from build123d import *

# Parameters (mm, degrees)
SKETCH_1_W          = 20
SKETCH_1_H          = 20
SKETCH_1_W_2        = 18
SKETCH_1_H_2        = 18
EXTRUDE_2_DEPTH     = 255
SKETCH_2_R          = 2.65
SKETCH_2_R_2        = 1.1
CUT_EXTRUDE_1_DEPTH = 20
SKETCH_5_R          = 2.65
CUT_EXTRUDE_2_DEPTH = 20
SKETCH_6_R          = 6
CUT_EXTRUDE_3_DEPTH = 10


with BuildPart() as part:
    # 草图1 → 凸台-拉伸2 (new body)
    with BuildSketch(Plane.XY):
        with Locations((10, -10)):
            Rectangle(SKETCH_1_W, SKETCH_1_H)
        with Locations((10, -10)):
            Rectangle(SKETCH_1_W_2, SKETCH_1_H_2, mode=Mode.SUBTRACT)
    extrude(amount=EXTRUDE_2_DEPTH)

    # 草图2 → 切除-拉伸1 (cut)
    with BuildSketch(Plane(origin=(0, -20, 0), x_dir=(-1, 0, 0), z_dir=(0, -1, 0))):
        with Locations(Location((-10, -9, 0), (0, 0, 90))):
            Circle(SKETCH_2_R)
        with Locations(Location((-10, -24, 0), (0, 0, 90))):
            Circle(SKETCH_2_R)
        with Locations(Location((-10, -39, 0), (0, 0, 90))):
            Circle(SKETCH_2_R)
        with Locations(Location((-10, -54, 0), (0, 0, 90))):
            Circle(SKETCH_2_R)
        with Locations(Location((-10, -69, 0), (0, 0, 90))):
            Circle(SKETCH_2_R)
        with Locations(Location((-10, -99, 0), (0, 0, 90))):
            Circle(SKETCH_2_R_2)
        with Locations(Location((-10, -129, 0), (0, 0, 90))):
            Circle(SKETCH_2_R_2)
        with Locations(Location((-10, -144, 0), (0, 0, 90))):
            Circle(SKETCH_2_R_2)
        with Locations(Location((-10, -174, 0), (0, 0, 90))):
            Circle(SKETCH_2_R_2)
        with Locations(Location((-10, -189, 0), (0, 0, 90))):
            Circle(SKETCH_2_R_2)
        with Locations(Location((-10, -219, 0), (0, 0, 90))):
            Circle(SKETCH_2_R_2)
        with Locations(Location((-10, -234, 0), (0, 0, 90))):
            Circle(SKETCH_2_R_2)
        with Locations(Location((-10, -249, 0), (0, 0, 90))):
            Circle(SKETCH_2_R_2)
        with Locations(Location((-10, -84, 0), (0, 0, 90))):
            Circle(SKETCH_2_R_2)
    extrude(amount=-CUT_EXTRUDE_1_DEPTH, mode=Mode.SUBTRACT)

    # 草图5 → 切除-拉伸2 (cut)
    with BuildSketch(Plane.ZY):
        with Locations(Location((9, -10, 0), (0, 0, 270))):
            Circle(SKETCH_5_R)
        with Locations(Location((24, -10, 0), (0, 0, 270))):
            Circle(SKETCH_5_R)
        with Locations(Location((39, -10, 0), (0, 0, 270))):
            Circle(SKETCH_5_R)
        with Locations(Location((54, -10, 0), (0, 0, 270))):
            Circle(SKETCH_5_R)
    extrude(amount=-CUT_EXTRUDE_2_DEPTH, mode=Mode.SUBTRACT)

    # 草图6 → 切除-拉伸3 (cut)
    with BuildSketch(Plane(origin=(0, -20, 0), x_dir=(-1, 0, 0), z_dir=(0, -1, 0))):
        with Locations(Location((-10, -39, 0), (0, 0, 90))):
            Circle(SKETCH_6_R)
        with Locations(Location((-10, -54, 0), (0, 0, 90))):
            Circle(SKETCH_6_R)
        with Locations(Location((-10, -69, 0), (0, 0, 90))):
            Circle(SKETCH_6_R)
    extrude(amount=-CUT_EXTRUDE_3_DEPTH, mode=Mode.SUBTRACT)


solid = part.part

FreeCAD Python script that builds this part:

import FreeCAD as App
import Part
import Sketcher
from FreeCAD import Vector


def add_polygon(sketch, points):
    """Adds a closed chain of lines whose ends are joined by coincident constraints."""
    first, n = sketch.GeometryCount, len(points)
    for a, b in zip(points, points[1:] + points[:1]):
        sketch.addGeometry(Part.LineSegment(App.Vector(*a, 0), App.Vector(*b, 0)), False)
    for i in range(n):
        sketch.addConstraint(Sketcher.Constraint("Coincident", first + i, 2, first + (i + 1) % n, 1))

doc = App.newDocument("Part")
body = doc.addObject("PartDesign::Body", "Body")

# Sketch on XY plane
sketch1 = body.newObject("Sketcher::SketchObject", "Sketch")
sketch1.AttachmentSupport = (doc.getObject("XY_Plane"), [""])
sketch1.MapMode = "FlatFace"
add_polygon(sketch1, [(0, 0), (0, -20), (20, -20), (20, 0)])  # lines 0-3
add_polygon(sketch1, [(19, -19), (1, -19), (1, -1), (19, -1)])  # lines 4-7
sketch1.addConstraint(Sketcher.Constraint("Vertical", 0))
sketch1.addConstraint(Sketcher.Constraint("Horizontal", 1))
sketch1.addConstraint(Sketcher.Constraint("Vertical", 2))
sketch1.addConstraint(Sketcher.Constraint("Horizontal", 3))
sketch1.addConstraint(Sketcher.Constraint("Horizontal", 4))
sketch1.addConstraint(Sketcher.Constraint("Vertical", 5))
sketch1.addConstraint(Sketcher.Constraint("Horizontal", 6))
sketch1.addConstraint(Sketcher.Constraint("Vertical", 7))
sketch1.addConstraint(Sketcher.Constraint("Coincident", 3, 2, -1, 1))
sketch1.addConstraint(Sketcher.Constraint("Equal", 3, 0))
sketch1.addConstraint(Sketcher.Constraint("Equal", 6, 5))
sketch1.addConstraint(Sketcher.Constraint("DistanceX", 1, 1, 1, 2, 20.0))
sketch1.addConstraint(Sketcher.Constraint("DistanceX", 4, 2, 4, 1, 18.0))
sketch1.addConstraint(Sketcher.Constraint("DistanceX", -1, 1, 4, 2, 1.0))
sketch1.addConstraint(Sketcher.Constraint("DistanceY", 4, 2, -1, 1, 19.0))
pad1 = body.newObject("PartDesign::Pad", "Pad")
pad1.Profile = sketch1
pad1.Length = 255

# Sketch on XZ plane
sketch2 = body.newObject("Sketcher::SketchObject", "Sketch001")
sketch2.AttachmentSupport = (doc.getObject("XZ_Plane"), [""])
sketch2.MapMode = "FlatFace"
sketch2.AttachmentOffset = App.Placement(Vector(0, 0, 20), App.Rotation())
sketch2.addGeometry(Part.Circle(Vector(10, 9, 0), Vector(0, 0, 1), 2.65), False)
sketch2.addGeometry(Part.Circle(Vector(10, 24, 0), Vector(0, 0, 1), 2.65), False)
sketch2.addGeometry(Part.Circle(Vector(10, 39, 0), Vector(0, 0, 1), 2.65), False)
sketch2.addGeometry(Part.Circle(Vector(10, 54, 0), Vector(0, 0, 1), 2.65), False)
sketch2.addGeometry(Part.Circle(Vector(10, 69, 0), Vector(0, 0, 1), 2.65), False)
sketch2.addGeometry(Part.Circle(Vector(10, 99, 0), Vector(0, 0, 1), 1.1), False)
sketch2.addGeometry(Part.Circle(Vector(10, 129, 0), Vector(0, 0, 1), 1.1), False)
sketch2.addGeometry(Part.Circle(Vector(10, 144, 0), Vector(0, 0, 1), 1.1), False)
sketch2.addGeometry(Part.Circle(Vector(10, 174, 0), Vector(0, 0, 1), 1.1), False)
sketch2.addGeometry(Part.Circle(Vector(10, 189, 0), Vector(0, 0, 1), 1.1), False)
sketch2.addGeometry(Part.Circle(Vector(10, 219, 0), Vector(0, 0, 1), 1.1), False)
sketch2.addGeometry(Part.Circle(Vector(10, 234, 0), Vector(0, 0, 1), 1.1), False)
sketch2.addGeometry(Part.Circle(Vector(10, 249, 0), Vector(0, 0, 1), 1.1), False)
sketch2.addGeometry(Part.Circle(Vector(10, 84, 0), Vector(0, 0, 1), 1.1), False)
sketch2.addConstraint(Sketcher.Constraint("Equal", 0, 1))
sketch2.addConstraint(Sketcher.Constraint("Equal", 1, 2))
sketch2.addConstraint(Sketcher.Constraint("Equal", 2, 3))
sketch2.addConstraint(Sketcher.Constraint("Equal", 3, 4))
sketch2.addConstraint(Sketcher.Constraint("Equal", 5, 6))
sketch2.addConstraint(Sketcher.Constraint("Equal", 6, 7))
sketch2.addConstraint(Sketcher.Constraint("Equal", 7, 8))
sketch2.addConstraint(Sketcher.Constraint("Equal", 8, 9))
sketch2.addConstraint(Sketcher.Constraint("Equal", 9, 10))
sketch2.addConstraint(Sketcher.Constraint("Equal", 10, 11))
sketch2.addConstraint(Sketcher.Constraint("Equal", 11, 12))
sketch2.addConstraint(Sketcher.Constraint("Equal", 12, 13))
sketch2.addConstraint(Sketcher.Constraint("Vertical", 0, 3, 1, 3))
sketch2.addConstraint(Sketcher.Constraint("Vertical", 1, 3, 2, 3))
sketch2.addConstraint(Sketcher.Constraint("Vertical", 2, 3, 3, 3))
sketch2.addConstraint(Sketcher.Constraint("Vertical", 3, 3, 4, 3))
sketch2.addConstraint(Sketcher.Constraint("Vertical", 4, 3, 5, 3))
sketch2.addConstraint(Sketcher.Constraint("Vertical", 5, 3, 6, 3))
sketch2.addConstraint(Sketcher.Constraint("Vertical", 6, 3, 7, 3))
sketch2.addConstraint(Sketcher.Constraint("Vertical", 7, 3, 8, 3))
sketch2.addConstraint(Sketcher.Constraint("Vertical", 8, 3, 9, 3))
sketch2.addConstraint(Sketcher.Constraint("Vertical", 9, 3, 10, 3))
sketch2.addConstraint(Sketcher.Constraint("Vertical", 10, 3, 11, 3))
sketch2.addConstraint(Sketcher.Constraint("Vertical", 11, 3, 12, 3))
sketch2.addConstraint(Sketcher.Constraint("Vertical", 12, 3, 13, 3))
sketch2.addConstraint(Sketcher.Constraint("Diameter", 0, 5.3))
sketch2.addConstraint(Sketcher.Constraint("Diameter", 5, 2.2))
sketch2.addConstraint(Sketcher.Constraint("DistanceX", -1, 1, 0, 3, 10.0))
sketch2.addConstraint(Sketcher.Constraint("DistanceY", -1, 1, 0, 3, 9.0))
sketch2.addConstraint(Sketcher.Constraint("DistanceY", -1, 1, 1, 3, 24.0))
sketch2.addConstraint(Sketcher.Constraint("DistanceY", -1, 1, 2, 3, 39.0))
sketch2.addConstraint(Sketcher.Constraint("DistanceY", -1, 1, 3, 3, 54.0))
sketch2.addConstraint(Sketcher.Constraint("DistanceY", -1, 1, 4, 3, 69.0))
sketch2.addConstraint(Sketcher.Constraint("DistanceY", -1, 1, 5, 3, 99.0))
sketch2.addConstraint(Sketcher.Constraint("DistanceY", -1, 1, 6, 3, 129.0))
sketch2.addConstraint(Sketcher.Constraint("DistanceY", -1, 1, 7, 3, 144.0))
sketch2.addConstraint(Sketcher.Constraint("DistanceY", -1, 1, 8, 3, 174.0))
sketch2.addConstraint(Sketcher.Constraint("DistanceY", -1, 1, 9, 3, 189.0))
sketch2.addConstraint(Sketcher.Constraint("DistanceY", -1, 1, 10, 3, 219.0))
sketch2.addConstraint(Sketcher.Constraint("DistanceY", -1, 1, 11, 3, 234.0))
sketch2.addConstraint(Sketcher.Constraint("DistanceY", -1, 1, 12, 3, 249.0))
sketch2.addConstraint(Sketcher.Constraint("DistanceY", -1, 1, 13, 3, 84.0))
pocket1 = body.newObject("PartDesign::Pocket", "Pocket")
pocket1.Profile = sketch2
pocket1.Length = 20

# Sketch on YZ plane
sketch3 = body.newObject("Sketcher::SketchObject", "Sketch002")
sketch3.AttachmentSupport = (doc.getObject("YZ_Plane"), [""])
sketch3.MapMode = "FlatFace"
sketch3.addGeometry(Part.Circle(Vector(-10, 9, 0), Vector(0, 0, 1), 2.65), False)
sketch3.addGeometry(Part.Circle(Vector(-10, 24, 0), Vector(0, 0, 1), 2.65), False)
sketch3.addGeometry(Part.Circle(Vector(-10, 39, 0), Vector(0, 0, 1), 2.65), False)
sketch3.addGeometry(Part.Circle(Vector(-10, 54, 0), Vector(0, 0, 1), 2.65), False)
sketch3.addConstraint(Sketcher.Constraint("Equal", 0, 1))
sketch3.addConstraint(Sketcher.Constraint("Equal", 1, 2))
sketch3.addConstraint(Sketcher.Constraint("Equal", 2, 3))
sketch3.addConstraint(Sketcher.Constraint("Vertical", 0, 3, 1, 3))
sketch3.addConstraint(Sketcher.Constraint("Vertical", 1, 3, 2, 3))
sketch3.addConstraint(Sketcher.Constraint("Vertical", 2, 3, 3, 3))
sketch3.addConstraint(Sketcher.Constraint("Diameter", 0, 5.3))
sketch3.addConstraint(Sketcher.Constraint("DistanceX", 0, 3, -1, 1, 10.0))
sketch3.addConstraint(Sketcher.Constraint("DistanceY", -1, 1, 0, 3, 9.0))
sketch3.addConstraint(Sketcher.Constraint("DistanceY", -1, 1, 1, 3, 24.0))
sketch3.addConstraint(Sketcher.Constraint("DistanceY", -1, 1, 2, 3, 39.0))
sketch3.addConstraint(Sketcher.Constraint("DistanceY", -1, 1, 3, 3, 54.0))
pocket2 = body.newObject("PartDesign::Pocket", "Pocket001")
pocket2.Profile = sketch3
pocket2.Length = 20
pocket2.Reversed = True

# Sketch on XZ plane
sketch4 = body.newObject("Sketcher::SketchObject", "Sketch003")
sketch4.AttachmentSupport = (doc.getObject("XZ_Plane"), [""])
sketch4.MapMode = "FlatFace"
sketch4.AttachmentOffset = App.Placement(Vector(0, 0, 20), App.Rotation())
sketch4.addGeometry(Part.Circle(Vector(10, 39, 0), Vector(0, 0, 1), 6), False)
sketch4.addGeometry(Part.Circle(Vector(10, 54, 0), Vector(0, 0, 1), 6), False)
sketch4.addGeometry(Part.Circle(Vector(10, 69, 0), Vector(0, 0, 1), 6), False)
sketch4.addConstraint(Sketcher.Constraint("Equal", 0, 1))
sketch4.addConstraint(Sketcher.Constraint("Equal", 1, 2))
sketch4.addConstraint(Sketcher.Constraint("Vertical", 0, 3, 1, 3))
sketch4.addConstraint(Sketcher.Constraint("Vertical", 1, 3, 2, 3))
sketch4.addConstraint(Sketcher.Constraint("Diameter", 0, 12.0))
sketch4.addConstraint(Sketcher.Constraint("DistanceX", -1, 1, 0, 3, 10.0))
sketch4.addConstraint(Sketcher.Constraint("DistanceY", -1, 1, 0, 3, 39.0))
sketch4.addConstraint(Sketcher.Constraint("DistanceY", -1, 1, 1, 3, 54.0))
sketch4.addConstraint(Sketcher.Constraint("DistanceY", -1, 1, 2, 3, 69.0))
pocket3 = body.newObject("PartDesign::Pocket", "Pocket002")
pocket3.Profile = sketch4
pocket3.Length = 10

doc.recompute()
